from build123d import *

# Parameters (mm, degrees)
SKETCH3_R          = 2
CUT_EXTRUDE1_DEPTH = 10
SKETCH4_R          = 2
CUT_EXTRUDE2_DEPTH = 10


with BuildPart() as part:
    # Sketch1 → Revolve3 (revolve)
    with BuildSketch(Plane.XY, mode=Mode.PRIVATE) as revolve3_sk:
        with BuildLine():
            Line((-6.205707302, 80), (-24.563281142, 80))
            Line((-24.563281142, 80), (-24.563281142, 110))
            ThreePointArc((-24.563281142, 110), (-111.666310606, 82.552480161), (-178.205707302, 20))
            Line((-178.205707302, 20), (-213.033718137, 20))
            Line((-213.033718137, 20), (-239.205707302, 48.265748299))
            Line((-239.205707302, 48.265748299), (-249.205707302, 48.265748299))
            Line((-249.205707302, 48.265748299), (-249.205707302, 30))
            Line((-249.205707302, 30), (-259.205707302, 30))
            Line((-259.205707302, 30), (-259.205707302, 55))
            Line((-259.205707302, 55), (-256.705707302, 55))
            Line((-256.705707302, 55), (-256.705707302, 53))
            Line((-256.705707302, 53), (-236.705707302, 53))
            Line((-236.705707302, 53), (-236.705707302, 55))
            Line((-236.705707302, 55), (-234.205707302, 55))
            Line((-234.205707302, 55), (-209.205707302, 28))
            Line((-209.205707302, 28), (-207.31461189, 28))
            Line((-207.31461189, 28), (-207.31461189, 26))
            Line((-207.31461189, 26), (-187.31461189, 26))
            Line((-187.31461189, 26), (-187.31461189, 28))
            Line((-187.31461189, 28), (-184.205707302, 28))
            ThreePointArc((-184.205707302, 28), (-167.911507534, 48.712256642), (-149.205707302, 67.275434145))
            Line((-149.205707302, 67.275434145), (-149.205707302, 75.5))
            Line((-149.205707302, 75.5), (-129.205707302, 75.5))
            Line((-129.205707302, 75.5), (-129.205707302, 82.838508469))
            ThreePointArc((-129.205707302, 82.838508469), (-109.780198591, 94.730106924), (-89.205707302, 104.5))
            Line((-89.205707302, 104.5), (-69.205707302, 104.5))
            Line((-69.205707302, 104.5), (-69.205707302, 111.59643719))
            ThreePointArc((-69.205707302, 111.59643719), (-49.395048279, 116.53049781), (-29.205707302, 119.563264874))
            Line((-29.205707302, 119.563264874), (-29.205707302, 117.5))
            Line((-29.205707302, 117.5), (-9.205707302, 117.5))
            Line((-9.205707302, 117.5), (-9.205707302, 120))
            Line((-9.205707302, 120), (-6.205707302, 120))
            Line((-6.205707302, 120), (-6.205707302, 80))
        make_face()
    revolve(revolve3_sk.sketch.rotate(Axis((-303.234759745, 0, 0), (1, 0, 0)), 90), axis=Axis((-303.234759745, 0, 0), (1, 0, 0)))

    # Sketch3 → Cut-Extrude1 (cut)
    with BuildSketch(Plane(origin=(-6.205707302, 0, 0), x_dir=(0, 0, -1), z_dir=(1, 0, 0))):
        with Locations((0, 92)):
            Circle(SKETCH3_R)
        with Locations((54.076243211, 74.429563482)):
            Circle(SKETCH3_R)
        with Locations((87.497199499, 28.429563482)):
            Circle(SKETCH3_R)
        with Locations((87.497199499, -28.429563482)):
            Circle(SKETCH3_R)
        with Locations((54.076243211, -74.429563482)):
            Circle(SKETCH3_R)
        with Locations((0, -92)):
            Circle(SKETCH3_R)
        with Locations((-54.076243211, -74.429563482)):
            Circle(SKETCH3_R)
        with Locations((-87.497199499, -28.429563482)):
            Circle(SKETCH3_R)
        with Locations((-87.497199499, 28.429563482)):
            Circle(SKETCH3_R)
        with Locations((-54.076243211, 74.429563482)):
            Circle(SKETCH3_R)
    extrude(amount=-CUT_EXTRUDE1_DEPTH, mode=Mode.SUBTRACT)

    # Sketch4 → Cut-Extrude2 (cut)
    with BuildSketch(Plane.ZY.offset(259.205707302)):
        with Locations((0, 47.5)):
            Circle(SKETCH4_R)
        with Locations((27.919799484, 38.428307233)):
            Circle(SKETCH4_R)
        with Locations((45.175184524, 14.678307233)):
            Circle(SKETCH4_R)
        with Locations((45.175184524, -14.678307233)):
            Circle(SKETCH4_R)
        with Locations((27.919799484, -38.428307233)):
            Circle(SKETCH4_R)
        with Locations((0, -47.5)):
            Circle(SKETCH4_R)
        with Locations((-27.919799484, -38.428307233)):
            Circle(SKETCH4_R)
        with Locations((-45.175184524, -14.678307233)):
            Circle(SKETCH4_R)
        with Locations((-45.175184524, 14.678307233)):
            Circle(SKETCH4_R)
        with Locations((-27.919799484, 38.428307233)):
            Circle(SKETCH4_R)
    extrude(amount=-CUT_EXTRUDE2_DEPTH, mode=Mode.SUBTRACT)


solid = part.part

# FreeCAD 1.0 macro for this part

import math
import FreeCAD as App
import Part
import Sketcher

V = App.Vector
Q = App.Units.Quantity

doc = App.newDocument("Part")
body = doc.addObject("PartDesign::Body", "Body")

sketch1 = body.newObject("Sketcher::SketchObject", "Sketch")
sketch1.AttachmentSupport = (doc.getObject("XY_Plane"), [""])
sketch1.MapMode = "FlatFace"
sketch1.addGeometry(Part.LineSegment(V(-24.563281, 80, 0), V(-6.205707, 80, 0)), False)
sketch1.addGeometry(Part.LineSegment(V(-6.205707, 80, 0), V(-6.205707, 120, 0)), False)
sketch1.addGeometry(Part.LineSegment(V(-6.205707, 120, 0), V(-9.205707, 120, 0)), False)
sketch1.addGeometry(Part.LineSegment(V(-9.205707, 120, 0), V(-9.205707, 117.5, 0)), False)
sketch1.addGeometry(Part.LineSegment(V(-9.205707, 117.5, 0), V(-29.205707, 117.5, 0)), False)
sketch1.addGeometry(Part.LineSegment(V(-29.205707, 117.5, 0), V(-29.205707, 119.563265, 0)), False)
sketch1.addGeometry(Part.ArcOfCircle(Part.Circle(V(-7.398234, -94.327909, 0), V(0, 0, 1), 215), math.radians(95.821529), math.radians(106.706945)), False)
sketch1.addGeometry(Part.LineSegment(V(-69.205707, 111.596437, 0), V(-69.205707, 104.5, 0)), False)
sketch1.addGeometry(Part.LineSegment(V(-69.205707, 104.5, 0), V(-89.205707, 104.5, 0)), False)
sketch1.addGeometry(Part.ArcOfCircle(Part.Circle(V(-7.398234, -94.327909, 0), V(0, 0, 1), 215), math.radians(112.36465), math.radians(124.509744)), False)
sketch1.addGeometry(Part.LineSegment(V(-129.205707, 82.838508, 0), V(-129.205707, 75.5, 0)), False)
sketch1.addGeometry(Part.LineSegment(V(-129.205707, 75.5, 0), V(-149.205707, 75.5, 0)), False)
sketch1.addGeometry(Part.LineSegment(V(-149.205707, 75.5, 0), V(-149.205707, 67.275434, 0)), False)
sketch1.addGeometry(Part.ArcOfCircle(Part.Circle(V(-7.398234, -94.327909, 0), V(0, 0, 1), 215), math.radians(131.26706), math.radians(145.321776)), False)
sketch1.addGeometry(Part.LineSegment(V(-184.205707, 28, 0), V(-187.314612, 28, 0)), False)
sketch1.addGeometry(Part.LineSegment(V(-187.314612, 28, 0), V(-187.314612, 26, 0)), False)
sketch1.addGeometry(Part.LineSegment(V(-187.314612, 26, 0), V(-207.314612, 26, 0)), False)
sketch1.addGeometry(Part.LineSegment(V(-207.314612, 26, 0), V(-207.314612, 28, 0)), False)
sketch1.addGeometry(Part.LineSegment(V(-207.314612, 28, 0), V(-209.205707, 28, 0)), False)
sketch1.addGeometry(Part.LineSegment(V(-209.205707, 28, 0), V(-234.205707, 55, 0)), False)
sketch1.addGeometry(Part.LineSegment(V(-234.205707, 55, 0), V(-236.705707, 55, 0)), False)
sketch1.addGeometry(Part.LineSegment(V(-236.705707, 55, 0), V(-236.705707, 53, 0)), False)
sketch1.addGeometry(Part.LineSegment(V(-236.705707, 53, 0), V(-256.705707, 53, 0)), False)
sketch1.addGeometry(Part.LineSegment(V(-256.705707, 53, 0), V(-256.705707, 55, 0)), False)
sketch1.addGeometry(Part.LineSegment(V(-256.705707, 55, 0), V(-259.205707, 55, 0)), False)
sketch1.addGeometry(Part.LineSegment(V(-259.205707, 55, 0), V(-259.205707, 30, 0)), False)
sketch1.addGeometry(Part.LineSegment(V(-259.205707, 30, 0), V(-249.205707, 30, 0)), False)
sketch1.addGeometry(Part.LineSegment(V(-249.205707, 30, 0), V(-249.205707, 48.265748, 0)), False)
sketch1.addGeometry(Part.LineSegment(V(-249.205707, 48.265748, 0), V(-239.205707, 48.265748, 0)), False)
sketch1.addGeometry(Part.LineSegment(V(-239.205707, 48.265748, 0), V(-213.033718, 20, 0)), False)
sketch1.addGeometry(Part.LineSegment(V(-213.033718, 20, 0), V(-178.205707, 20, 0)), False)
sketch1.addGeometry(Part.ArcOfCircle(Part.Circle(V(-8.050584, -94.333871, 0), V(0, 0, 1), 205), math.radians(94.620166), math.radians(146.101305)), False)
sketch1.addGeometry(Part.LineSegment(V(-24.563281, 110, 0), V(-24.563281, 80, 0)), False)
sketch1.addConstraint(Sketcher.Constraint("Coincident", 0, 2, 1, 1))
sketch1.addConstraint(Sketcher.Constraint("Coincident", 1, 2, 2, 1))
sketch1.addConstraint(Sketcher.Constraint("Coincident", 2, 2, 3, 1))
sketch1.addConstraint(Sketcher.Constraint("Coincident", 3, 2, 4, 1))
sketch1.addConstraint(Sketcher.Constraint("Coincident", 4, 2, 5, 1))
sketch1.addConstraint(Sketcher.Constraint("Coincident", 5, 2, 6, 1))
sketch1.addConstraint(Sketcher.Constraint("Coincident", 6, 2, 7, 1))
sketch1.addConstraint(Sketcher.Constraint("Coincident", 7, 2, 8, 1))
sketch1.addConstraint(Sketcher.Constraint("Coincident", 8, 2, 9, 1))
sketch1.addConstraint(Sketcher.Constraint("Coincident", 9, 2, 10, 1))
sketch1.addConstraint(Sketcher.Constraint("Coincident", 10, 2, 11, 1))
sketch1.addConstraint(Sketcher.Constraint("Coincident", 11, 2, 12, 1))
sketch1.addConstraint(Sketcher.Constraint("Coincident", 12, 2, 13, 1))
sketch1.addConstraint(Sketcher.Constraint("Coincident", 13, 2, 14, 1))
sketch1.addConstraint(Sketcher.Constraint("Coincident", 14, 2, 15, 1))
sketch1.addConstraint(Sketcher.Constraint("Coincident", 15, 2, 16, 1))
sketch1.addConstraint(Sketcher.Constraint("Coincident", 16, 2, 17, 1))
sketch1.addConstraint(Sketcher.Constraint("Coincident", 17, 2, 18, 1))
sketch1.addConstraint(Sketcher.Constraint("Coincident", 18, 2, 19, 1))
sketch1.addConstraint(Sketcher.Constraint("Coincident", 19, 2, 20, 1))
sketch1.addConstraint(Sketcher.Constraint("Coincident", 20, 2, 21, 1))
sketch1.addConstraint(Sketcher.Constraint("Coincident", 21, 2, 22, 1))
sketch1.addConstraint(Sketcher.Constraint("Coincident", 22, 2, 23, 1))
sketch1.addConstraint(Sketcher.Constraint("Coincident", 23, 2, 24, 1))
sketch1.addConstraint(Sketcher.Constraint("Coincident", 24, 2, 25, 1))
sketch1.addConstraint(Sketcher.Constraint("Coincident", 25, 2, 26, 1))
sketch1.addConstraint(Sketcher.Constraint("Coincident", 26, 2, 27, 1))
sketch1.addConstraint(Sketcher.Constraint("Coincident", 27, 2, 28, 1))
sketch1.addConstraint(Sketcher.Constraint("Coincident", 28, 2, 29, 1))
sketch1.addConstraint(Sketcher.Constraint("Coincident", 29, 2, 30, 1))
sketch1.addConstraint(Sketcher.Constraint("Coincident", 30, 2, 31, 2))
sketch1.addConstraint(Sketcher.Constraint("Coincident", 31, 1, 32, 1))
sketch1.addConstraint(Sketcher.Constraint("Coincident", 32, 2, 0, 1))
sketch1.addConstraint(Sketcher.Constraint("Horizontal", 0))
sketch1.addConstraint(Sketcher.Constraint("Vertical", 1))
sketch1.addConstraint(Sketcher.Constraint("Horizontal", 2))
sketch1.addConstraint(Sketcher.Constraint("Vertical", 3))
sketch1.addConstraint(Sketcher.Constraint("Horizontal", 4))
sketch1.addConstraint(Sketcher.Constraint("Vertical", 5))
sketch1.addConstraint(Sketcher.Constraint("Vertical", 7))
sketch1.addConstraint(Sketcher.Constraint("Horizontal", 8))
sketch1.addConstraint(Sketcher.Constraint("Vertical", 10))
sketch1.addConstraint(Sketcher.Constraint("Horizontal", 11))
sketch1.addConstraint(Sketcher.Constraint("Vertical", 12))
sketch1.addConstraint(Sketcher.Constraint("Horizontal", 14))
sketch1.addConstraint(Sketcher.Constraint("Vertical", 15))
sketch1.addConstraint(Sketcher.Constraint("Horizontal", 16))
sketch1.addConstraint(Sketcher.Constraint("Vertical", 17))
sketch1.addConstraint(Sketcher.Constraint("Horizontal", 18))
sketch1.addConstraint(Sketcher.Constraint("Horizontal", 20))
sketch1.addConstraint(Sketcher.Constraint("Vertical", 21))
sketch1.addConstraint(Sketcher.Constraint("Horizontal", 22))
sketch1.addConstraint(Sketcher.Constraint("Vertical", 23))
sketch1.addConstraint(Sketcher.Constraint("Horizontal", 24))
sketch1.addConstraint(Sketcher.Constraint("Vertical", 25))
sketch1.addConstraint(Sketcher.Constraint("Horizontal", 26))
sketch1.addConstraint(Sketcher.Constraint("Vertical", 27))
sketch1.addConstraint(Sketcher.Constraint("Horizontal", 28))
sketch1.addConstraint(Sketcher.Constraint("Horizontal", 30))
sketch1.addConstraint(Sketcher.Constraint("Vertical", 32))
sketch1.addConstraint(Sketcher.Constraint("Coincident", 9, 3, 6, 3))
sketch1.addConstraint(Sketcher.Constraint("Coincident", 13, 3, 6, 3))
sketch1.addConstraint(Sketcher.Constraint("Equal", 6, 9))
sketch1.addConstraint(Sketcher.Constraint("Equal", 9, 13))
sketch1.addConstraint(Sketcher.Constraint("Parallel", 19, 29))
sketch1.addConstraint(Sketcher.Constraint("Horizontal", 14, 2, 17, 2))
sketch1.addConstraint(Sketcher.Constraint("Horizontal", 20, 2, 23, 2))
sketch1.addConstraint(Sketcher.Constraint("Equal", 4, 8))
sketch1.addConstraint(Sketcher.Constraint("Equal", 8, 11))
sketch1.addConstraint(Sketcher.Constraint("Equal", 11, 16))
sketch1.addConstraint(Sketcher.Constraint("Equal", 16, 22))
sketch1.addConstraint(Sketcher.Constraint("Equal", 20, 24))
sketch1.addConstraint(Sketcher.Constraint("Equal", 26, 28))
sketch1.addConstraint(Sketcher.Constraint("Equal", 24, 3))
sketch1.addConstraint(Sketcher.Constraint("Equal", 17, 21))
sketch1.addConstraint(Sketcher.Constraint("Radius", 6, Q("215 mm")))
sketch1.addConstraint(Sketcher.Constraint("Radius", 31, Q("205 mm")))
sketch1.addConstraint(Sketcher.Constraint("DistanceX", 2, 2, 2, 1, Q("3 mm")))
sketch1.addConstraint(Sketcher.Constraint("DistanceX", 4, 2, 4, 1, Q("20 mm")))
sketch1.addConstraint(Sketcher.Constraint("DistanceX", 26, 1, 26, 2, Q("10 mm")))
sketch1.addConstraint(Sketcher.Constraint("DistanceY", 1, 1, 1, 2, Q("40 mm")))
sketch1.addConstraint(Sketcher.Constraint("DistanceY", 15, 2, 15, 1, Q("2 mm")))
sketch1.addConstraint(Sketcher.Constraint("DistanceY", 25, 2, 25, 1, Q("25 mm")))
sketch1.addConstraint(Sketcher.Constraint("DistanceY", 32, 2, 32, 1, Q("30 mm")))
sketch1.addConstraint(Sketcher.Constraint("DistanceX", 20, 2, 20, 1, Q("2.5 mm")))
sketch1.addConstraint(Sketcher.Constraint("DistanceY", -1, 1, 0, 2, Q("80 mm")))
sketch1.addConstraint(Sketcher.Constraint("DistanceY", -1, 1, 14, 2, Q("28 mm")))
sketch1.addConstraint(Sketcher.Constraint("DistanceY", -1, 1, 19, 2, Q("55 mm")))
sketch1.addConstraint(Sketcher.Constraint("DistanceY", -1, 1, 29, 2, Q("20 mm")))
sketch1.addConstraint(Sketcher.Constraint("DistanceX", 6, 2, 4, 2, Q("40 mm")))
sketch1.addConstraint(Sketcher.Constraint("DistanceY", 7, 2, 4, 2, Q("13 mm")))
sketch1.addConstraint(Sketcher.Constraint("DistanceX", 9, 2, 8, 2, Q("40 mm")))
sketch1.addConstraint(Sketcher.Constraint("DistanceY", 10, 2, 8, 2, Q("29 mm")))
sketch1.addConstraint(Sketcher.Constraint("DistanceX", 13, 2, 12, 2, Q("35 mm")))
sketch1.addConstraint(Sketcher.Constraint("DistanceX", 18, 2, 13, 2, Q("25 mm")))
sketch1.addConstraint(Sketcher.Constraint("DistanceX", 19, 2, 18, 2, Q("25 mm")))
sketch1.addConstraint(Sketcher.Constraint("DistanceX", 13, 2, 30, 2, Q("6 mm")))
sketch1.addConstraint(Sketcher.Constraint("DistanceX", 30, 1, 30, 2, Q("34.828011 mm")))
sketch1.addConstraint(Sketcher.Constraint("DistanceX", 0, 1, 0, 2, Q("18.357574 mm")))
sketch1.addConstraint(Sketcher.Constraint("DistanceX", 14, 2, 14, 1, Q("3.108905 mm")))
sketch1.addConstraint(Sketcher.Constraint("DistanceX", 14, 2, -1, 1, Q("187.314612 mm")))
revolution = body.newObject("PartDesign::Revolution", "Revolution")
revolution.Profile = sketch1
revolution.ReferenceAxis = (sketch1, ["H_Axis"])
revolution.Angle = 360

sketch2 = body.newObject("Sketcher::SketchObject", "Sketch001")
sketch2.AttachmentSupport = (doc.getObject("YZ_Plane"), [""])
sketch2.MapMode = "FlatFace"
sketch2.AttachmentOffset = App.Placement(V(0, 0, -6.205707), App.Rotation())
sketch2.addGeometry(Part.Circle(V(92, 0, 0), V(0, 0, 1), 2), False)
sketch2.addGeometry(Part.Circle(V(74.429563, -54.076243, 0), V(0, 0, 1), 2), False)
sketch2.addGeometry(Part.Circle(V(28.429563, -87.497199, 0), V(0, 0, 1), 2), False)
sketch2.addGeometry(Part.Circle(V(-28.429563, -87.497199, 0), V(0, 0, 1), 2), False)
sketch2.addGeometry(Part.Circle(V(-74.429563, -54.076243, 0), V(0, 0, 1), 2), False)
sketch2.addGeometry(Part.Circle(V(-92, 0, 0), V(0, 0, 1), 2), False)
sketch2.addGeometry(Part.Circle(V(-74.429563, 54.076243, 0), V(0, 0, 1), 2), False)
sketch2.addGeometry(Part.Circle(V(-28.429563, 87.497199, 0), V(0, 0, 1), 2), False)
sketch2.addGeometry(Part.Circle(V(28.429563, 87.497199, 0), V(0, 0, 1), 2), False)
sketch2.addGeometry(Part.Circle(V(74.429563, 54.076243, 0), V(0, 0, 1), 2), False)
sketch2.addConstraint(Sketcher.Constraint("Equal", 0, 1))
sketch2.addConstraint(Sketcher.Constraint("Equal", 1, 2))
sketch2.addConstraint(Sketcher.Constraint("Equal", 2, 3))
sketch2.addConstraint(Sketcher.Constraint("Equal", 3, 4))
sketch2.addConstraint(Sketcher.Constraint("Equal", 4, 5))
sketch2.addConstraint(Sketcher.Constraint("Equal", 5, 6))
sketch2.addConstraint(Sketcher.Constraint("Equal", 6, 7))
sketch2.addConstraint(Sketcher.Constraint("Equal", 7, 8))
sketch2.addConstraint(Sketcher.Constraint("Equal", 8, 9))
sketch2.addConstraint(Sketcher.Constraint("Symmetric", 0, 3, 5, 3, -1, 1))
sketch2.addConstraint(Sketcher.Constraint("Symmetric", 1, 3, 6, 3, -1, 1))
sketch2.addConstraint(Sketcher.Constraint("Symmetric", 2, 3, 7, 3, -1, 1))
sketch2.addConstraint(Sketcher.Constraint("Symmetric", 3, 3, 8, 3, -1, 1))
sketch2.addConstraint(Sketcher.Constraint("Symmetric", 4, 3, 9, 3, -1, 1))
sketch2.addConstraint(Sketcher.Constraint("Symmetric", 2, 3, 3, 3, -2))
sketch2.addConstraint(Sketcher.Constraint("Symmetric", 1, 3, 4, 3, -2))
sketch2.addConstraint(Sketcher.Constraint("PointOnObject", 0, 3, -1))
sketch2.addConstraint(Sketcher.Constraint("Diameter", 0, Q("4 mm")))
sketch2.addConstraint(Sketcher.Constraint("DistanceX", -1, 1, 0, 3, Q("92 mm")))
sketch2.addConstraint(Sketcher.Constraint("DistanceX", 2, 3, 1, 3, Q("46 mm")))
sketch2.addConstraint(Sketcher.Constraint("DistanceY", 2, 3, -1, 1, Q("87.497199 mm")))
sketch2.addConstraint(Sketcher.Constraint("DistanceX", -1, 1, 1, 3, Q("74.429563 mm")))
sketch2.addConstraint(Sketcher.Constraint("DistanceY", 1, 3, -1, 1, Q("54.076243 mm")))
pocket1 = body.newObject("PartDesign::Pocket", "Pocket")
pocket1.Profile = sketch2
pocket1.Length = 10

sketch3 = body.newObject("Sketcher::SketchObject", "Sketch002")
sketch3.AttachmentSupport = (doc.getObject("YZ_Plane"), [""])
sketch3.MapMode = "FlatFace"
sketch3.AttachmentOffset = App.Placement(V(0, 0, -259.205707), App.Rotation())
sketch3.addGeometry(Part.Circle(V(47.5, 0, 0), V(0, 0, 1), 2), False)
sketch3.addGeometry(Part.Circle(V(38.428307, 27.919799, 0), V(0, 0, 1), 2), False)
sketch3.addGeometry(Part.Circle(V(14.678307, 45.175185, 0), V(0, 0, 1), 2), False)
sketch3.addGeometry(Part.Circle(V(-14.678307, 45.175185, 0), V(0, 0, 1), 2), False)
sketch3.addGeometry(Part.Circle(V(-38.428307, 27.919799, 0), V(0, 0, 1), 2), False)
sketch3.addGeometry(Part.Circle(V(-47.5, 0, 0), V(0, 0, 1), 2), False)
sketch3.addGeometry(Part.Circle(V(-38.428307, -27.919799, 0), V(0, 0, 1), 2), False)
sketch3.addGeometry(Part.Circle(V(-14.678307, -45.175185, 0), V(0, 0, 1), 2), False)
sketch3.addGeometry(Part.Circle(V(14.678307, -45.175185, 0), V(0, 0, 1), 2), False)
sketch3.addGeometry(Part.Circle(V(38.428307, -27.919799, 0), V(0, 0, 1), 2), False)
sketch3.addConstraint(Sketcher.Constraint("Equal", 0, 1))
sketch3.addConstraint(Sketcher.Constraint("Equal", 1, 2))
sketch3.addConstraint(Sketcher.Constraint("Equal", 2, 3))
sketch3.addConstraint(Sketcher.Constraint("Equal", 3, 4))
sketch3.addConstraint(Sketcher.Constraint("Equal", 4, 5))
sketch3.addConstraint(Sketcher.Constraint("Equal", 5, 6))
sketch3.addConstraint(Sketcher.Constraint("Equal", 6, 7))
sketch3.addConstraint(Sketcher.Constraint("Equal", 7, 8))
sketch3.addConstraint(Sketcher.Constraint("Equal", 8, 9))
sketch3.addConstraint(Sketcher.Constraint("Symmetric", 0, 3, 5, 3, -1, 1))
sketch3.addConstraint(Sketcher.Constraint("Symmetric", 1, 3, 6, 3, -1, 1))
sketch3.addConstraint(Sketcher.Constraint("Symmetric", 2, 3, 7, 3, -1, 1))
sketch3.addConstraint(Sketcher.Constraint("Symmetric", 3, 3, 8, 3, -1, 1))
sketch3.addConstraint(Sketcher.Constraint("Symmetric", 4, 3, 9, 3, -1, 1))
sketch3.addConstraint(Sketcher.Constraint("Symmetric", 2, 3, 3, 3, -2))
sketch3.addConstraint(Sketcher.Constraint("Symmetric", 1, 3, 4, 3, -2))
sketch3.addConstraint(Sketcher.Constraint("PointOnObject", 0, 3, -1))
sketch3.addConstraint(Sketcher.Constraint("Diameter", 0, Q("4 mm")))
sketch3.addConstraint(Sketcher.Constraint("DistanceX", 5, 3, 0, 3, Q("95 mm")))
sketch3.addConstraint(Sketcher.Constraint("DistanceX", 2, 3, 1, 3, Q("23.75 mm")))
sketch3.addConstraint(Sketcher.Constraint("DistanceY", -1, 1, 1, 3, Q("27.919799 mm")))
sketch3.addConstraint(Sketcher.Constraint("DistanceY", 7, 3, 3, 3, Q("90.350369 mm")))
sketch3.addConstraint(Sketcher.Constraint("DistanceX", -1, 1, 1, 3, Q("38.428307 mm")))
pocket2 = body.newObject("PartDesign::Pocket", "Pocket001")
pocket2.Profile = sketch3
pocket2.Length = 10
pocket2.Reversed = True

doc.recompute()
